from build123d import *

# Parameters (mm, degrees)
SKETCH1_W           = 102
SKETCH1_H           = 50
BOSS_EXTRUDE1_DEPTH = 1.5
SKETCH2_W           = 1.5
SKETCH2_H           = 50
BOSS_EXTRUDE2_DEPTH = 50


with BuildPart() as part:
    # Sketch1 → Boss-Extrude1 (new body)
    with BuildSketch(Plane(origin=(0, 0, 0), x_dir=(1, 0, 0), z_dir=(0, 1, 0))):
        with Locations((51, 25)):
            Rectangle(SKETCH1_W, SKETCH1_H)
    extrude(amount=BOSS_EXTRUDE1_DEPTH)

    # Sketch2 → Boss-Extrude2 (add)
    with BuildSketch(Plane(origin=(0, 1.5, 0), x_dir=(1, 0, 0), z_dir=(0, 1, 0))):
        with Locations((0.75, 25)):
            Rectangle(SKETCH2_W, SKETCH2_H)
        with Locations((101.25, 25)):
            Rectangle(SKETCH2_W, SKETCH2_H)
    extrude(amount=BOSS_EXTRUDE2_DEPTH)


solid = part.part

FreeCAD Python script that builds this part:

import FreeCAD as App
import Part
import Sketcher
Q = App.Units.Quantity

doc = App.newDocument("Part")
params = doc.addObject("Spreadsheet::Sheet", "Params")
for row, (alias, value) in enumerate([
    ("sketch1_width", "102 mm"),
    ("sketch1_height", "50 mm"),
    ("pad1_length", "1.5 mm"),
    ("sketch2_height", "50 mm"),
    ("sketch2_width", "1.5 mm"),
    ("pad2_length", "50 mm"),
], start=1):
    params.set(f"A{row}", alias)
    params.set(f"B{row}", "=" + value)
    params.setAlias(f"B{row}", alias)

body = doc.addObject("PartDesign::Body", "Body")

# Sketch on XZ plane
sketch1 = body.newObject("Sketcher::SketchObject", "Sketch")
sketch1.AttachmentSupport = (doc.getObject("XZ_Plane"), [""])
sketch1.MapMode = "FlatFace"
sketch1.addGeometry([
    Part.LineSegment(App.Vector(0, -50, 0), App.Vector(0, 0, 0)),
    Part.LineSegment(App.Vector(0, 0, 0), App.Vector(102, 0, 0)),
    Part.LineSegment(App.Vector(102, 0, 0), App.Vector(102, -50, 0)),
    Part.LineSegment(App.Vector(102, -50, 0), App.Vector(0, -50, 0)),
], False)
sketch1.addConstraint([
    Sketcher.Constraint("Coincident", 0, 2, 1, 1),
    Sketcher.Constraint("Coincident", 1, 2, 2, 1),
    Sketcher.Constraint("Coincident", 2, 2, 3, 1),
    Sketcher.Constraint("Coincident", 3, 2, 0, 1),
    Sketcher.Constraint("Vertical", 0),
    Sketcher.Constraint("Horizontal", 1),
    Sketcher.Constraint("Vertical", 2),
    Sketcher.Constraint("Horizontal", 3),
    Sketcher.Constraint("Coincident", 0, 2, -1, 1),
    Sketcher.Constraint("DistanceX", 1, 1, 1, 2, Q("102 mm")),
    Sketcher.Constraint("DistanceY", 0, 1, 0, 2, Q("50 mm")),
])
sketch1.setExpression("Constraints[9]", "Params.sketch1_width")
sketch1.setExpression("Constraints[10]", "Params.sketch1_height")
pad1 = body.newObject("PartDesign::Pad", "Pad")
pad1.Profile = sketch1
pad1.setExpression("Length", "Params.pad1_length")
pad1.Reversed = True

# Sketch on XZ plane
sketch2 = body.newObject("Sketcher::SketchObject", "Sketch001")
sketch2.AttachmentSupport = (doc.getObject("XZ_Plane"), [""])
sketch2.MapMode = "FlatFace"
sketch2.AttachmentOffset = App.Placement(App.Vector(0, 0, -1.5), App.Rotation())
sketch2.addGeometry([
    Part.LineSegment(App.Vector(0, -50, 0), App.Vector(0, 0, 0)),  # 0
    Part.LineSegment(App.Vector(0, 0, 0), App.Vector(1.5, 0, 0)),  # 1
    Part.LineSegment(App.Vector(1.5, 0, 0), App.Vector(1.5, -50, 0)),  # 2
    Part.LineSegment(App.Vector(1.5, -50, 0), App.Vector(0, -50, 0)),  # 3
    Part.LineSegment(App.Vector(100.5, -50, 0), App.Vector(100.5, 0, 0)),  # 4
    Part.LineSegment(App.Vector(100.5, 0, 0), App.Vector(102, 0, 0)),  # 5
    Part.LineSegment(App.Vector(102, 0, 0), App.Vector(102, -50, 0)),  # 6
    Part.LineSegment(App.Vector(102, -50, 0), App.Vector(100.5, -50, 0)),  # 7
], False)
sketch2.addConstraint([
    Sketcher.Constraint("Coincident", 0, 2, 1, 1),
    Sketcher.Constraint("Coincident", 1, 2, 2, 1),
    Sketcher.Constraint("Coincident", 2, 2, 3, 1),
    Sketcher.Constraint("Coincident", 3, 2, 0, 1),
    Sketcher.Constraint("Coincident", 4, 2, 5, 1),
    Sketcher.Constraint("Coincident", 5, 2, 6, 1),
    Sketcher.Constraint("Coincident", 6, 2, 7, 1),
    Sketcher.Constraint("Coincident", 7, 2, 4, 1),
    Sketcher.Constraint("Vertical", 0),
    Sketcher.Constraint("Horizontal", 1),
    Sketcher.Constraint("Vertical", 2),
    Sketcher.Constraint("Horizontal", 3),
    Sketcher.Constraint("Vertical", 4),
    Sketcher.Constraint("Horizontal", 5),
    Sketcher.Constraint("Vertical", 6),
    Sketcher.Constraint("Horizontal", 7),
    Sketcher.Constraint("Coincident", 0, 2, -1, 1),
    Sketcher.Constraint("PointOnObject", 4, 2, -1),
    Sketcher.Constraint("Horizontal", 3, 2, 6, 2),
    Sketcher.Constraint("Equal", 3, 5),
    Sketcher.Constraint("DistanceY", 0, 1, 0, 2, Q("50 mm")),
    Sketcher.Constraint("DistanceX", 1, 1, 1, 2, Q("1.5 mm")),
    Sketcher.Constraint("DistanceX", -1, 1, 5, 2, Q("102 mm")),
])
sketch2.setExpression("Constraints[20]", "Params.sketch2_height")
sketch2.setExpression("Constraints[21]", "Params.sketch2_width")
pad2 = body.newObject("PartDesign::Pad", "Pad001")
pad2.Profile = sketch2
pad2.setExpression("Length", "Params.pad2_length")
pad2.Reversed = True

doc.recompute()
